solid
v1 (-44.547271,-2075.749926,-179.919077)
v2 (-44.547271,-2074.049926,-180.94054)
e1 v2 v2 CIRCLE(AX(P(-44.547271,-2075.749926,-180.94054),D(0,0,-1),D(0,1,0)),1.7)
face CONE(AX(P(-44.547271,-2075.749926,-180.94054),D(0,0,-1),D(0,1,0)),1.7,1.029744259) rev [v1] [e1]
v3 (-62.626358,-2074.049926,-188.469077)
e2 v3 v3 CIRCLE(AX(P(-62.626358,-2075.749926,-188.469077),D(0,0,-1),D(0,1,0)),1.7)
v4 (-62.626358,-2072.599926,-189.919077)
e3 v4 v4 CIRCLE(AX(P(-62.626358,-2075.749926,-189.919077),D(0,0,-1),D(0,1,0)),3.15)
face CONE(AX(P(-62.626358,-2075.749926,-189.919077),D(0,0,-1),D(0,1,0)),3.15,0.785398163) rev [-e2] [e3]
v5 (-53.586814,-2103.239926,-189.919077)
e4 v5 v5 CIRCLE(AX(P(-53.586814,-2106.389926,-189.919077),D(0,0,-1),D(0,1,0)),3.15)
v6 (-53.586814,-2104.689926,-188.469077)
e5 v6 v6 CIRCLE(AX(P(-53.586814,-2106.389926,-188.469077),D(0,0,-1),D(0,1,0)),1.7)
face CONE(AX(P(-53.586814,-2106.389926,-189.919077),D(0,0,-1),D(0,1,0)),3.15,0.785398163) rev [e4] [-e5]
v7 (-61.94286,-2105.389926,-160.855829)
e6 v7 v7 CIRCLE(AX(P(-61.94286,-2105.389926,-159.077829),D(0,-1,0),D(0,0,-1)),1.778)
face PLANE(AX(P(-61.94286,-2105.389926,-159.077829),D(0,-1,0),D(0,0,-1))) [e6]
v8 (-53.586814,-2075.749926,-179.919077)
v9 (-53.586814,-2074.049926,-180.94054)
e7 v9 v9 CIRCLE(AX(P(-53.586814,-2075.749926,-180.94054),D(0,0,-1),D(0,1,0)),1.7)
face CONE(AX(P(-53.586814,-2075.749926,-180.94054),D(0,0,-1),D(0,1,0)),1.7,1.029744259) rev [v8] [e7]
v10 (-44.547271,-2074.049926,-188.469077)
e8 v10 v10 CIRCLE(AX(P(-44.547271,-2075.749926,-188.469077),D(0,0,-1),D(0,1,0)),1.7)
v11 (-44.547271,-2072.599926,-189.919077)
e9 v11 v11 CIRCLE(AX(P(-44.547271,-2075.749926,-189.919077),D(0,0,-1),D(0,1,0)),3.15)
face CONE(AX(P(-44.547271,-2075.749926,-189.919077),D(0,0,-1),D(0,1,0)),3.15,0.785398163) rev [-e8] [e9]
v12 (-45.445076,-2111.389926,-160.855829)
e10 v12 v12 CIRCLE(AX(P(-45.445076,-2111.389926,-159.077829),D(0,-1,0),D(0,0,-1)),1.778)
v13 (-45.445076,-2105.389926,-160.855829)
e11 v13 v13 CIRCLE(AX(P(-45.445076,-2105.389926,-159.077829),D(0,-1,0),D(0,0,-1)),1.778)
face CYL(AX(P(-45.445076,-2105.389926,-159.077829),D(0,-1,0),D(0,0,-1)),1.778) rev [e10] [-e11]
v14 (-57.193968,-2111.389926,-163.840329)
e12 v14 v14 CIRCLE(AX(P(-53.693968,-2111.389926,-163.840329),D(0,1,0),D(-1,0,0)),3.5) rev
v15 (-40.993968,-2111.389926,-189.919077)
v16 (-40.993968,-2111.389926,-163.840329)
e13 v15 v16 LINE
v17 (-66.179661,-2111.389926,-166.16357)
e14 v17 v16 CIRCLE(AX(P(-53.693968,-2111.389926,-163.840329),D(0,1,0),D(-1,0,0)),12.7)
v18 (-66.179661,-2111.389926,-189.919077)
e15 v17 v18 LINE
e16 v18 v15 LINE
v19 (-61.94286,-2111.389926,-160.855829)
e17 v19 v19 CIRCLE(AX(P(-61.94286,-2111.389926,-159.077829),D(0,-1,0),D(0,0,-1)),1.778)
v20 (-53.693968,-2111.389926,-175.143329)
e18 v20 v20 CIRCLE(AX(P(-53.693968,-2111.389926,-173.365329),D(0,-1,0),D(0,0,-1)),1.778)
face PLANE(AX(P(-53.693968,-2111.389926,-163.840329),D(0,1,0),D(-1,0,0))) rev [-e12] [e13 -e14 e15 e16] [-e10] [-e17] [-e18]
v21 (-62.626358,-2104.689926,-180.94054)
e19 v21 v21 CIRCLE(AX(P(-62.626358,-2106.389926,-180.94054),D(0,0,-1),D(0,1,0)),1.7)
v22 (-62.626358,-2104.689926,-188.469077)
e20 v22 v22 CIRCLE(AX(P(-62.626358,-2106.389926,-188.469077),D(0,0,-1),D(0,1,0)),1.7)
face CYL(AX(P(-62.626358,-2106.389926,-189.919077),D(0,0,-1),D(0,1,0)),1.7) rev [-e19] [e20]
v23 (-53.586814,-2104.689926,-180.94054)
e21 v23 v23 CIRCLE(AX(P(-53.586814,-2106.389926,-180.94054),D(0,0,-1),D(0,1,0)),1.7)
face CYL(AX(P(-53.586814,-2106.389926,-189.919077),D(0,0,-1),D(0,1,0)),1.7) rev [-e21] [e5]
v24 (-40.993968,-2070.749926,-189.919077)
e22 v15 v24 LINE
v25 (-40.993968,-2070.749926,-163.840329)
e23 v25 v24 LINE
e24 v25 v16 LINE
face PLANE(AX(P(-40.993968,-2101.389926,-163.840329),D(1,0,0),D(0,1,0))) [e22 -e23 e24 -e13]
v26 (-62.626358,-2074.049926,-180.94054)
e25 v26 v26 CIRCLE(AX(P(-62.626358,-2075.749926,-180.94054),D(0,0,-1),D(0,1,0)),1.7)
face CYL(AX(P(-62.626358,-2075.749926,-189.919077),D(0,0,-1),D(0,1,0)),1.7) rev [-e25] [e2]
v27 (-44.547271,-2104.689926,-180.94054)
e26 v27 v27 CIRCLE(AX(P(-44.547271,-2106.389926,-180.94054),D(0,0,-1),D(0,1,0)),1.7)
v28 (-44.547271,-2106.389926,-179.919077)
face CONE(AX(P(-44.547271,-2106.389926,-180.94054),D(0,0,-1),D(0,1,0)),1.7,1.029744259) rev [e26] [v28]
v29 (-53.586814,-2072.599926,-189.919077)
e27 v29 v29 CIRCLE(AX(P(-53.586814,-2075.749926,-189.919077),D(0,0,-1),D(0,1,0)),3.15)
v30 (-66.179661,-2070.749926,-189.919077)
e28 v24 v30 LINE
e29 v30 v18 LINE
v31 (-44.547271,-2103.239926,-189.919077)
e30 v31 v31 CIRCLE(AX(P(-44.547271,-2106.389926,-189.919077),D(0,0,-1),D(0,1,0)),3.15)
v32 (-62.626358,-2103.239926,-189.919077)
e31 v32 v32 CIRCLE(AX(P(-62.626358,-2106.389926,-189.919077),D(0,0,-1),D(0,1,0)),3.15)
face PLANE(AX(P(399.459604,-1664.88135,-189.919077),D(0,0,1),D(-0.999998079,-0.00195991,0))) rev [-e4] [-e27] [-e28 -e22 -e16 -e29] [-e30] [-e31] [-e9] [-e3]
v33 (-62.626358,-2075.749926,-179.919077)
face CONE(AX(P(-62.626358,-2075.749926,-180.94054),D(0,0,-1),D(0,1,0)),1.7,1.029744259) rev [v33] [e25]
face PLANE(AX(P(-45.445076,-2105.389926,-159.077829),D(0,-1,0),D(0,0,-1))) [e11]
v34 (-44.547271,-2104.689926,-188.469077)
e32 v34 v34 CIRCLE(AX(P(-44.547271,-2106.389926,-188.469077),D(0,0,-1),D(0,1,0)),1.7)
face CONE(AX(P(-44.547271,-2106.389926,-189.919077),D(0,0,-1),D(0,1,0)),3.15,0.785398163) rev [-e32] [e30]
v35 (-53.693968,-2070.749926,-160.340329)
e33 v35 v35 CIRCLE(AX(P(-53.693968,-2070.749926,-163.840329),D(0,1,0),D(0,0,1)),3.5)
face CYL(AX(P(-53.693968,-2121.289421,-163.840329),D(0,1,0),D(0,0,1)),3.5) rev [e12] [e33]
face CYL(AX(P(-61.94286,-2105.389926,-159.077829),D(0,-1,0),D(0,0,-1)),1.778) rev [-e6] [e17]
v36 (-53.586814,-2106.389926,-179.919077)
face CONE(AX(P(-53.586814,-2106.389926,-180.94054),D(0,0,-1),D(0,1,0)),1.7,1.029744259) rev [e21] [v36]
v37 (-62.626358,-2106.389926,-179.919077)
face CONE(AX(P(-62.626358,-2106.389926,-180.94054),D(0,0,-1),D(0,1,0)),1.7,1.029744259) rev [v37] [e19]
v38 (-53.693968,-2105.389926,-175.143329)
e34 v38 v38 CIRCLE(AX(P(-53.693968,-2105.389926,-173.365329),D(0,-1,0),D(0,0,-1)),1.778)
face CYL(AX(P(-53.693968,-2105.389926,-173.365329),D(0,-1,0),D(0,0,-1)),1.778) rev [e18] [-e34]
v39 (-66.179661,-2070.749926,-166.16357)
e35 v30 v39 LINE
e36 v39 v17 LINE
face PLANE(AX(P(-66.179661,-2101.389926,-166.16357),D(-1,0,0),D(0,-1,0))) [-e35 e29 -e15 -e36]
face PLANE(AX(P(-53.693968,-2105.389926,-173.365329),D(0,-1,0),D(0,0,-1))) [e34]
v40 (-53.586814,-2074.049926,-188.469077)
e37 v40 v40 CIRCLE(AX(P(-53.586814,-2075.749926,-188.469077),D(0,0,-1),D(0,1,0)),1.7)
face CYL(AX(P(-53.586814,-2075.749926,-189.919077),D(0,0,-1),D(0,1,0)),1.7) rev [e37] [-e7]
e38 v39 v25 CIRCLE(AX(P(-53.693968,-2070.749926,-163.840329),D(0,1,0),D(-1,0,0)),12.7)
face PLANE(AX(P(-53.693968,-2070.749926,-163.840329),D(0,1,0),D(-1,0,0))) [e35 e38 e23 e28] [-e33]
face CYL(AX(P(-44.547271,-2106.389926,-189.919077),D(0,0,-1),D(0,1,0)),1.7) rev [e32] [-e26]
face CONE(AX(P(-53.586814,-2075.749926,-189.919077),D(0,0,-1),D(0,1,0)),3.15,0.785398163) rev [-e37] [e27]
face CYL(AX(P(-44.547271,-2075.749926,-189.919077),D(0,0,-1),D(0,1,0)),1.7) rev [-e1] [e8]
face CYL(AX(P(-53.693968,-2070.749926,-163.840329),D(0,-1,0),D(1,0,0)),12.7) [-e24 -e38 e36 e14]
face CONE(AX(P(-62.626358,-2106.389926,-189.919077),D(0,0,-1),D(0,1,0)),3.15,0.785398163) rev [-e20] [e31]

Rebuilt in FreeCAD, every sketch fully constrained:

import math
import FreeCAD as App
import Part
import Sketcher

V = App.Vector
Q = App.Units.Quantity


def add_polygon(sketch, points):
    """Adds a closed chain of lines whose ends are joined by coincident constraints."""
    first, n = sketch.GeometryCount, len(points)
    for a, b in zip(points, points[1:] + points[:1]):
        sketch.addGeometry(Part.LineSegment(App.Vector(*a, 0), App.Vector(*b, 0)), False)
    for i in range(n):
        sketch.addConstraint(Sketcher.Constraint("Coincident", first + i, 2, first + (i + 1) % n, 1))

doc = App.newDocument("Part")
body = doc.addObject("PartDesign::Body", "Body")

sketch1 = body.newObject("Sketcher::SketchObject", "Sketch")
sketch1.AttachmentSupport = (doc.getObject("XZ_Plane"), [""])
sketch1.MapMode = "FlatFace"
sketch1.AttachmentOffset = App.Placement(V(0, 0, 2111.389926), App.Rotation())
sketch1.addGeometry(Part.Circle(V(-54, -164, 0), V(0, 0, 1), 13), False)
sketch1.addConstraint([
    Sketcher.Constraint("Diameter", 0, 25.4),
    Sketcher.Constraint("DistanceY", 0, 3, -1, 1, 163.840329),
    Sketcher.Constraint("DistanceX", 0, 3, -1, 1, 53.693968),
])
pad1 = body.newObject("PartDesign::Pad", "Pad")
pad1.Profile = sketch1
pad1.Length = 40.64
pad1.Reversed = True

sketch2 = body.newObject("Sketcher::SketchObject", "Sketch001")
sketch2.AttachmentSupport = (doc.getObject("XZ_Plane"), [""])
sketch2.MapMode = "FlatFace"
sketch2.AttachmentOffset = App.Placement(V(0, 0, 2070.749926), App.Rotation())
sketch2.addGeometry(Part.Circle(V(-53.7, -163.8, 0), V(0, 0, 1), 3.5), False)
sketch2.addConstraint([
    Sketcher.Constraint("Diameter", 0, 7.0),
    Sketcher.Constraint("DistanceY", 0, 3, -1, 1, 163.840329),
    Sketcher.Constraint("DistanceX", 0, 3, -1, 1, 53.693968),
])
pocket1 = body.newObject("PartDesign::Pocket", "Pocket")
pocket1.Profile = sketch2
pocket1.Length = 40.64
pocket1.Reversed = True

sketch3 = body.newObject("Sketcher::SketchObject", "Sketch002")
sketch3.AttachmentSupport = (doc.getObject("XZ_Plane"), [""])
sketch3.MapMode = "FlatFace"
sketch3.AttachmentOffset = App.Placement(V(0, 0, 2111.389926), App.Rotation())
sketch3.addGeometry([
    Part.Circle(V(-61.9, -159.1, 0), V(0, 0, 1), 1.8),
    Part.Circle(V(-53.7, -173.4, 0), V(0, 0, 1), 1.8),
    Part.Circle(V(-45.4, -159.1, 0), V(0, 0, 1), 1.8),
], False)
sketch3.addConstraint([
    Sketcher.Constraint("Equal", 0, 1),
    Sketcher.Constraint("Equal", 1, 2),
    Sketcher.Constraint("Horizontal", 0, 3, 2, 3),
    Sketcher.Constraint("Diameter", 0, 3.556),
    Sketcher.Constraint("DistanceY", 1, 3, 0, 3, 14.2875),
    Sketcher.Constraint("DistanceX", 0, 3, -1, 1, 61.94286),
    Sketcher.Constraint("DistanceY", 0, 3, -1, 1, 159.077829),
    Sketcher.Constraint("DistanceX", 0, 3, 1, 3, 8.248892),
    Sketcher.Constraint("DistanceX", 1, 3, 2, 3, 8.248892),
])
pocket2 = body.newObject("PartDesign::Pocket", "Pocket001")
pocket2.Profile = sketch3
pocket2.Length = 6

sketch4 = body.newObject("Sketcher::SketchObject", "Sketch003")
sketch4.AttachmentSupport = (doc.getObject("XZ_Plane"), [""])
sketch4.MapMode = "FlatFace"
sketch4.AttachmentOffset = App.Placement(V(0, 0, 2111.389926), App.Rotation())
sketch4.addGeometry([
    Part.LineSegment(V(-41, -183, 0), V(-41, -164, 0)),
    Part.ArcOfCircle(Part.Circle(V(-54, -164, 0), V(0, 0, 1), 13), math.radians(-169), math.radians(0)),
    Part.LineSegment(V(-66, -166, 0), V(-66, -183, 0)),
    Part.LineSegment(V(-66, -183, 0), V(-41, -183, 0)),
], False)
sketch4.addConstraint([
    Sketcher.Constraint("Tangent", 0, 2, 1, 2),
    Sketcher.Constraint("Coincident", 1, 1, 2, 1),
    Sketcher.Constraint("Coincident", 2, 2, 3, 1),
    Sketcher.Constraint("Coincident", 3, 2, 0, 1),
    Sketcher.Constraint("Vertical", 0),
    Sketcher.Constraint("Vertical", 2),
    Sketcher.Constraint("Horizontal", 3),
    Sketcher.Constraint("Radius", 1, 12.7),
    Sketcher.Constraint("DistanceY", 0, 1, 0, 2, 18.793959),
    Sketcher.Constraint("DistanceX", 3, 1, 3, 2, 25.185694),
    Sketcher.Constraint("DistanceY", 1, 3, -1, 1, 163.840329),
    Sketcher.Constraint("DistanceX", 1, 1, -1, 1, 66.179661),
])
pad2 = body.newObject("PartDesign::Pad", "Pad001")
pad2.Profile = sketch4
pad2.Length = 10
pad2.Reversed = True

sketch5 = body.newObject("Sketcher::SketchObject", "Sketch004")
sketch5.AttachmentSupport = (doc.getObject("XY_Plane"), [""])
sketch5.MapMode = "FlatFace"
sketch5.AttachmentOffset = App.Placement(V(0, 0, -182.634288), App.Rotation())
add_polygon(sketch5, [(-41, -2101), (-41, -2111), (-66, -2111), (-66, -2101)])
sketch5.addConstraint([
    Sketcher.Constraint("Vertical", 0),
    Sketcher.Constraint("Horizontal", 1),
    Sketcher.Constraint("Vertical", 2),
    Sketcher.Constraint("Horizontal", 3),
    Sketcher.Constraint("DistanceY", 0, 2, 0, 1, 10.0),
    Sketcher.Constraint("DistanceX", 1, 2, 1, 1, 25.185694),
    Sketcher.Constraint("DistanceX", 1, 2, -1, 1, 66.179661),
    Sketcher.Constraint("DistanceY", 0, 2, -1, 1, 2111.389926),
])
pad3 = body.newObject("PartDesign::Pad", "Pad002")
pad3.Profile = sketch5
pad3.Length = 7.284789
pad3.Reversed = True

sketch6 = body.newObject("Sketcher::SketchObject", "Sketch005")
sketch6.AttachmentSupport = (doc.getObject("XZ_Plane"), [""])
sketch6.MapMode = "FlatFace"
sketch6.AttachmentOffset = App.Placement(V(0, 0, 2070.749926), App.Rotation())
sketch6.addGeometry([
    Part.LineSegment(V(-66, -190, 0), V(-66, -164, 0)),
    Part.ArcOfCircle(Part.Circle(V(-54, -164, 0), V(0, 0, 1), 13), math.radians(180), math.radians(360)),
    Part.LineSegment(V(-41, -164, 0), V(-41, -190, 0)),
    Part.LineSegment(V(-41, -190, 0), V(-66, -190, 0)),
], False)
sketch6.addConstraint([
    Sketcher.Constraint("Tangent", 0, 2, 1, 1),
    Sketcher.Constraint("Tangent", 1, 2, 2, 1),
    Sketcher.Constraint("Coincident", 2, 2, 3, 1),
    Sketcher.Constraint("Coincident", 3, 2, 0, 1),
    Sketcher.Constraint("Vertical", 0),
    Sketcher.Constraint("Vertical", 2),
    Sketcher.Constraint("Horizontal", 3),
    Sketcher.Constraint("Radius", 1, 12.592847),
    Sketcher.Constraint("DistanceY", 0, 1, 0, 2, 26.078748),
    Sketcher.Constraint("DistanceY", 1, 3, -1, 1, 163.840329),
    Sketcher.Constraint("DistanceX", 0, 2, -1, 1, 66.179661),
])
pad4 = body.newObject("PartDesign::Pad", "Pad003")
pad4.Profile = sketch6
pad4.Length = 30.64

sketch7 = body.newObject("Sketcher::SketchObject", "Sketch006")
sketch7.AttachmentSupport = (doc.getObject("YZ_Plane"), [""])
sketch7.MapMode = "FlatFace"
sketch7.AttachmentOffset = App.Placement(V(0, 0, -53.586814), App.Rotation())
add_polygon(sketch7, [(-2075.7, -179.9), (-2075.7, -189.9), (-2072.6, -189.9), (-2074, -188.5), (-2074, -180.9)])
sketch7.addGeometry(Part.LineSegment(V(-2075.7, -189.9, 0), V(-2075.7, -179.9, 0)), True)
sketch7.addConstraint([
    Sketcher.Constraint("Vertical", 0),
    Sketcher.Constraint("Horizontal", 1),
    Sketcher.Constraint("Vertical", 3),
    Sketcher.Constraint("Vertical", 5),
    Sketcher.Constraint("Coincident", 5, 1, 0, 2),
    Sketcher.Constraint("Equal", 0, 5),
    Sketcher.Constraint("DistanceY", 0, 2, 0, 1, 10.0),
    Sketcher.Constraint("Angle", 2, Q("135 deg")),
    Sketcher.Constraint("Angle", 4, Q("149 deg")),
    Sketcher.Constraint("DistanceX", 1, 1, 1, 2, 3.15),
    Sketcher.Constraint("DistanceX", 0, 2, 2, 2, 1.7),
    Sketcher.Constraint("DistanceY", 3, 2, -1, 1, 180.94054),
    Sketcher.Constraint("DistanceX", 0, 2, -1, 1, 2075.749926),
])
groove = body.newObject("PartDesign::Groove", "Groove")
groove.Profile = sketch7
groove.ReferenceAxis = (sketch7, ["Axis0"])
groove.Angle = 360
doc.recompute()

linearpattern = body.newObject("PartDesign::LinearPattern", "LinearPattern")
linearpattern.Originals = [groove]
linearpattern.Direction = (doc.getObject("X_Axis"), [""])
linearpattern.Mode = "offset"
linearpattern.Offset = 9.039543
linearpattern.Occurrences = 2
linearpattern.Reversed = True
body.Tip = linearpattern
doc.recompute()

linearpattern2 = body.newObject("PartDesign::LinearPattern", "LinearPattern001")
linearpattern2.Originals = [groove]
linearpattern2.Direction = (doc.getObject("X_Axis"), [""])
linearpattern2.Mode = "offset"
linearpattern2.Offset = 9.039543
linearpattern2.Occurrences = 2
body.Tip = linearpattern2
doc.recompute()

datumplane = body.newObject("PartDesign::Plane", "DatumPlane")
datumplane.AttachmentSupport = (doc.getObject("XZ_Plane"), [""])
datumplane.MapMode = "FlatFace"
datumplane.AttachmentOffset = App.Placement(V(0, 0, 2091.069926), App.Rotation())
mirrored = body.newObject("PartDesign::Mirrored", "Mirrored")
mirrored.Originals = [groove]
mirrored.MirrorPlane = (datumplane, [""])
body.Tip = mirrored

sketch8 = body.newObject("Sketcher::SketchObject", "Sketch007")
sketch8.AttachmentSupport = (doc.getObject("YZ_Plane"), [""])
sketch8.MapMode = "FlatFace"
sketch8.AttachmentOffset = App.Placement(V(0, 0, -62.626358), App.Rotation())
add_polygon(sketch8, [(-2106.4, -189.9), (-2106.4, -179.9), (-2108.1, -180.9), (-2108.1, -188.5), (-2109.5, -189.9)])
sketch8.addGeometry(Part.LineSegment(V(-2106.4, -179.9, 0), V(-2106.4, -189.9, 0)), True)
sketch8.addConstraint([
    Sketcher.Constraint("Vertical", 0),
    Sketcher.Constraint("Vertical", 2),
    Sketcher.Constraint("Horizontal", 4),
    Sketcher.Constraint("Vertical", 5),
    Sketcher.Constraint("Coincident", 5, 1, 0, 2),
    Sketcher.Constraint("Horizontal", 3, 2, 5, 2),
    Sketcher.Constraint("DistanceY", 0, 1, 0, 2, 10.0),
    Sketcher.Constraint("Angle", 1, Q("-149 deg")),
    Sketcher.Constraint("Angle", 3, Q("-135 deg")),
    Sketcher.Constraint("DistanceX", 4, 1, 4, 2, 3.15),
    Sketcher.Constraint("DistanceX", 1, 2, 0, 2, 1.7),
    Sketcher.Constraint("DistanceY", 1, 2, -1, 1, 180.94054),
    Sketcher.Constraint("DistanceX", 0, 2, -1, 1, 2106.389926),
])
groove2 = body.newObject("PartDesign::Groove", "Groove001")
groove2.Profile = sketch8
groove2.ReferenceAxis = (sketch8, ["Axis0"])
groove2.Angle = 360

sketch9 = body.newObject("Sketcher::SketchObject", "Sketch008")
sketch9.AttachmentSupport = (doc.getObject("YZ_Plane"), [""])
sketch9.MapMode = "FlatFace"
sketch9.AttachmentOffset = App.Placement(V(0, 0, -44.547271), App.Rotation())
add_polygon(sketch9, [(-2106.4, -189.9), (-2106.4, -179.9), (-2108.1, -180.9), (-2108.1, -188.5), (-2109.5, -189.9)])
sketch9.addGeometry(Part.LineSegment(V(-2106.4, -179.9, 0), V(-2106.4, -189.9, 0)), True)
sketch9.addConstraint([
    Sketcher.Constraint("Vertical", 0),
    Sketcher.Constraint("Vertical", 2),
    Sketcher.Constraint("Horizontal", 4),
    Sketcher.Constraint("Vertical", 5),
    Sketcher.Constraint("Coincident", 5, 1, 0, 2),
    Sketcher.Constraint("Horizontal", 3, 2, 5, 2),
    Sketcher.Constraint("DistanceY", 0, 1, 0, 2, 10.0),
    Sketcher.Constraint("Angle", 1, Q("-149 deg")),
    Sketcher.Constraint("Angle", 3, Q("-135 deg")),
    Sketcher.Constraint("DistanceX", 4, 1, 4, 2, 3.15),
    Sketcher.Constraint("DistanceX", 1, 2, 0, 2, 1.7),
    Sketcher.Constraint("DistanceY", 1, 2, -1, 1, 180.94054),
    Sketcher.Constraint("DistanceX", 0, 2, -1, 1, 2106.389926),
])
groove3 = body.newObject("PartDesign::Groove", "Groove002")
groove3.Profile = sketch9
groove3.ReferenceAxis = (sketch9, ["Axis0"])
groove3.Angle = 360

doc.recompute()
